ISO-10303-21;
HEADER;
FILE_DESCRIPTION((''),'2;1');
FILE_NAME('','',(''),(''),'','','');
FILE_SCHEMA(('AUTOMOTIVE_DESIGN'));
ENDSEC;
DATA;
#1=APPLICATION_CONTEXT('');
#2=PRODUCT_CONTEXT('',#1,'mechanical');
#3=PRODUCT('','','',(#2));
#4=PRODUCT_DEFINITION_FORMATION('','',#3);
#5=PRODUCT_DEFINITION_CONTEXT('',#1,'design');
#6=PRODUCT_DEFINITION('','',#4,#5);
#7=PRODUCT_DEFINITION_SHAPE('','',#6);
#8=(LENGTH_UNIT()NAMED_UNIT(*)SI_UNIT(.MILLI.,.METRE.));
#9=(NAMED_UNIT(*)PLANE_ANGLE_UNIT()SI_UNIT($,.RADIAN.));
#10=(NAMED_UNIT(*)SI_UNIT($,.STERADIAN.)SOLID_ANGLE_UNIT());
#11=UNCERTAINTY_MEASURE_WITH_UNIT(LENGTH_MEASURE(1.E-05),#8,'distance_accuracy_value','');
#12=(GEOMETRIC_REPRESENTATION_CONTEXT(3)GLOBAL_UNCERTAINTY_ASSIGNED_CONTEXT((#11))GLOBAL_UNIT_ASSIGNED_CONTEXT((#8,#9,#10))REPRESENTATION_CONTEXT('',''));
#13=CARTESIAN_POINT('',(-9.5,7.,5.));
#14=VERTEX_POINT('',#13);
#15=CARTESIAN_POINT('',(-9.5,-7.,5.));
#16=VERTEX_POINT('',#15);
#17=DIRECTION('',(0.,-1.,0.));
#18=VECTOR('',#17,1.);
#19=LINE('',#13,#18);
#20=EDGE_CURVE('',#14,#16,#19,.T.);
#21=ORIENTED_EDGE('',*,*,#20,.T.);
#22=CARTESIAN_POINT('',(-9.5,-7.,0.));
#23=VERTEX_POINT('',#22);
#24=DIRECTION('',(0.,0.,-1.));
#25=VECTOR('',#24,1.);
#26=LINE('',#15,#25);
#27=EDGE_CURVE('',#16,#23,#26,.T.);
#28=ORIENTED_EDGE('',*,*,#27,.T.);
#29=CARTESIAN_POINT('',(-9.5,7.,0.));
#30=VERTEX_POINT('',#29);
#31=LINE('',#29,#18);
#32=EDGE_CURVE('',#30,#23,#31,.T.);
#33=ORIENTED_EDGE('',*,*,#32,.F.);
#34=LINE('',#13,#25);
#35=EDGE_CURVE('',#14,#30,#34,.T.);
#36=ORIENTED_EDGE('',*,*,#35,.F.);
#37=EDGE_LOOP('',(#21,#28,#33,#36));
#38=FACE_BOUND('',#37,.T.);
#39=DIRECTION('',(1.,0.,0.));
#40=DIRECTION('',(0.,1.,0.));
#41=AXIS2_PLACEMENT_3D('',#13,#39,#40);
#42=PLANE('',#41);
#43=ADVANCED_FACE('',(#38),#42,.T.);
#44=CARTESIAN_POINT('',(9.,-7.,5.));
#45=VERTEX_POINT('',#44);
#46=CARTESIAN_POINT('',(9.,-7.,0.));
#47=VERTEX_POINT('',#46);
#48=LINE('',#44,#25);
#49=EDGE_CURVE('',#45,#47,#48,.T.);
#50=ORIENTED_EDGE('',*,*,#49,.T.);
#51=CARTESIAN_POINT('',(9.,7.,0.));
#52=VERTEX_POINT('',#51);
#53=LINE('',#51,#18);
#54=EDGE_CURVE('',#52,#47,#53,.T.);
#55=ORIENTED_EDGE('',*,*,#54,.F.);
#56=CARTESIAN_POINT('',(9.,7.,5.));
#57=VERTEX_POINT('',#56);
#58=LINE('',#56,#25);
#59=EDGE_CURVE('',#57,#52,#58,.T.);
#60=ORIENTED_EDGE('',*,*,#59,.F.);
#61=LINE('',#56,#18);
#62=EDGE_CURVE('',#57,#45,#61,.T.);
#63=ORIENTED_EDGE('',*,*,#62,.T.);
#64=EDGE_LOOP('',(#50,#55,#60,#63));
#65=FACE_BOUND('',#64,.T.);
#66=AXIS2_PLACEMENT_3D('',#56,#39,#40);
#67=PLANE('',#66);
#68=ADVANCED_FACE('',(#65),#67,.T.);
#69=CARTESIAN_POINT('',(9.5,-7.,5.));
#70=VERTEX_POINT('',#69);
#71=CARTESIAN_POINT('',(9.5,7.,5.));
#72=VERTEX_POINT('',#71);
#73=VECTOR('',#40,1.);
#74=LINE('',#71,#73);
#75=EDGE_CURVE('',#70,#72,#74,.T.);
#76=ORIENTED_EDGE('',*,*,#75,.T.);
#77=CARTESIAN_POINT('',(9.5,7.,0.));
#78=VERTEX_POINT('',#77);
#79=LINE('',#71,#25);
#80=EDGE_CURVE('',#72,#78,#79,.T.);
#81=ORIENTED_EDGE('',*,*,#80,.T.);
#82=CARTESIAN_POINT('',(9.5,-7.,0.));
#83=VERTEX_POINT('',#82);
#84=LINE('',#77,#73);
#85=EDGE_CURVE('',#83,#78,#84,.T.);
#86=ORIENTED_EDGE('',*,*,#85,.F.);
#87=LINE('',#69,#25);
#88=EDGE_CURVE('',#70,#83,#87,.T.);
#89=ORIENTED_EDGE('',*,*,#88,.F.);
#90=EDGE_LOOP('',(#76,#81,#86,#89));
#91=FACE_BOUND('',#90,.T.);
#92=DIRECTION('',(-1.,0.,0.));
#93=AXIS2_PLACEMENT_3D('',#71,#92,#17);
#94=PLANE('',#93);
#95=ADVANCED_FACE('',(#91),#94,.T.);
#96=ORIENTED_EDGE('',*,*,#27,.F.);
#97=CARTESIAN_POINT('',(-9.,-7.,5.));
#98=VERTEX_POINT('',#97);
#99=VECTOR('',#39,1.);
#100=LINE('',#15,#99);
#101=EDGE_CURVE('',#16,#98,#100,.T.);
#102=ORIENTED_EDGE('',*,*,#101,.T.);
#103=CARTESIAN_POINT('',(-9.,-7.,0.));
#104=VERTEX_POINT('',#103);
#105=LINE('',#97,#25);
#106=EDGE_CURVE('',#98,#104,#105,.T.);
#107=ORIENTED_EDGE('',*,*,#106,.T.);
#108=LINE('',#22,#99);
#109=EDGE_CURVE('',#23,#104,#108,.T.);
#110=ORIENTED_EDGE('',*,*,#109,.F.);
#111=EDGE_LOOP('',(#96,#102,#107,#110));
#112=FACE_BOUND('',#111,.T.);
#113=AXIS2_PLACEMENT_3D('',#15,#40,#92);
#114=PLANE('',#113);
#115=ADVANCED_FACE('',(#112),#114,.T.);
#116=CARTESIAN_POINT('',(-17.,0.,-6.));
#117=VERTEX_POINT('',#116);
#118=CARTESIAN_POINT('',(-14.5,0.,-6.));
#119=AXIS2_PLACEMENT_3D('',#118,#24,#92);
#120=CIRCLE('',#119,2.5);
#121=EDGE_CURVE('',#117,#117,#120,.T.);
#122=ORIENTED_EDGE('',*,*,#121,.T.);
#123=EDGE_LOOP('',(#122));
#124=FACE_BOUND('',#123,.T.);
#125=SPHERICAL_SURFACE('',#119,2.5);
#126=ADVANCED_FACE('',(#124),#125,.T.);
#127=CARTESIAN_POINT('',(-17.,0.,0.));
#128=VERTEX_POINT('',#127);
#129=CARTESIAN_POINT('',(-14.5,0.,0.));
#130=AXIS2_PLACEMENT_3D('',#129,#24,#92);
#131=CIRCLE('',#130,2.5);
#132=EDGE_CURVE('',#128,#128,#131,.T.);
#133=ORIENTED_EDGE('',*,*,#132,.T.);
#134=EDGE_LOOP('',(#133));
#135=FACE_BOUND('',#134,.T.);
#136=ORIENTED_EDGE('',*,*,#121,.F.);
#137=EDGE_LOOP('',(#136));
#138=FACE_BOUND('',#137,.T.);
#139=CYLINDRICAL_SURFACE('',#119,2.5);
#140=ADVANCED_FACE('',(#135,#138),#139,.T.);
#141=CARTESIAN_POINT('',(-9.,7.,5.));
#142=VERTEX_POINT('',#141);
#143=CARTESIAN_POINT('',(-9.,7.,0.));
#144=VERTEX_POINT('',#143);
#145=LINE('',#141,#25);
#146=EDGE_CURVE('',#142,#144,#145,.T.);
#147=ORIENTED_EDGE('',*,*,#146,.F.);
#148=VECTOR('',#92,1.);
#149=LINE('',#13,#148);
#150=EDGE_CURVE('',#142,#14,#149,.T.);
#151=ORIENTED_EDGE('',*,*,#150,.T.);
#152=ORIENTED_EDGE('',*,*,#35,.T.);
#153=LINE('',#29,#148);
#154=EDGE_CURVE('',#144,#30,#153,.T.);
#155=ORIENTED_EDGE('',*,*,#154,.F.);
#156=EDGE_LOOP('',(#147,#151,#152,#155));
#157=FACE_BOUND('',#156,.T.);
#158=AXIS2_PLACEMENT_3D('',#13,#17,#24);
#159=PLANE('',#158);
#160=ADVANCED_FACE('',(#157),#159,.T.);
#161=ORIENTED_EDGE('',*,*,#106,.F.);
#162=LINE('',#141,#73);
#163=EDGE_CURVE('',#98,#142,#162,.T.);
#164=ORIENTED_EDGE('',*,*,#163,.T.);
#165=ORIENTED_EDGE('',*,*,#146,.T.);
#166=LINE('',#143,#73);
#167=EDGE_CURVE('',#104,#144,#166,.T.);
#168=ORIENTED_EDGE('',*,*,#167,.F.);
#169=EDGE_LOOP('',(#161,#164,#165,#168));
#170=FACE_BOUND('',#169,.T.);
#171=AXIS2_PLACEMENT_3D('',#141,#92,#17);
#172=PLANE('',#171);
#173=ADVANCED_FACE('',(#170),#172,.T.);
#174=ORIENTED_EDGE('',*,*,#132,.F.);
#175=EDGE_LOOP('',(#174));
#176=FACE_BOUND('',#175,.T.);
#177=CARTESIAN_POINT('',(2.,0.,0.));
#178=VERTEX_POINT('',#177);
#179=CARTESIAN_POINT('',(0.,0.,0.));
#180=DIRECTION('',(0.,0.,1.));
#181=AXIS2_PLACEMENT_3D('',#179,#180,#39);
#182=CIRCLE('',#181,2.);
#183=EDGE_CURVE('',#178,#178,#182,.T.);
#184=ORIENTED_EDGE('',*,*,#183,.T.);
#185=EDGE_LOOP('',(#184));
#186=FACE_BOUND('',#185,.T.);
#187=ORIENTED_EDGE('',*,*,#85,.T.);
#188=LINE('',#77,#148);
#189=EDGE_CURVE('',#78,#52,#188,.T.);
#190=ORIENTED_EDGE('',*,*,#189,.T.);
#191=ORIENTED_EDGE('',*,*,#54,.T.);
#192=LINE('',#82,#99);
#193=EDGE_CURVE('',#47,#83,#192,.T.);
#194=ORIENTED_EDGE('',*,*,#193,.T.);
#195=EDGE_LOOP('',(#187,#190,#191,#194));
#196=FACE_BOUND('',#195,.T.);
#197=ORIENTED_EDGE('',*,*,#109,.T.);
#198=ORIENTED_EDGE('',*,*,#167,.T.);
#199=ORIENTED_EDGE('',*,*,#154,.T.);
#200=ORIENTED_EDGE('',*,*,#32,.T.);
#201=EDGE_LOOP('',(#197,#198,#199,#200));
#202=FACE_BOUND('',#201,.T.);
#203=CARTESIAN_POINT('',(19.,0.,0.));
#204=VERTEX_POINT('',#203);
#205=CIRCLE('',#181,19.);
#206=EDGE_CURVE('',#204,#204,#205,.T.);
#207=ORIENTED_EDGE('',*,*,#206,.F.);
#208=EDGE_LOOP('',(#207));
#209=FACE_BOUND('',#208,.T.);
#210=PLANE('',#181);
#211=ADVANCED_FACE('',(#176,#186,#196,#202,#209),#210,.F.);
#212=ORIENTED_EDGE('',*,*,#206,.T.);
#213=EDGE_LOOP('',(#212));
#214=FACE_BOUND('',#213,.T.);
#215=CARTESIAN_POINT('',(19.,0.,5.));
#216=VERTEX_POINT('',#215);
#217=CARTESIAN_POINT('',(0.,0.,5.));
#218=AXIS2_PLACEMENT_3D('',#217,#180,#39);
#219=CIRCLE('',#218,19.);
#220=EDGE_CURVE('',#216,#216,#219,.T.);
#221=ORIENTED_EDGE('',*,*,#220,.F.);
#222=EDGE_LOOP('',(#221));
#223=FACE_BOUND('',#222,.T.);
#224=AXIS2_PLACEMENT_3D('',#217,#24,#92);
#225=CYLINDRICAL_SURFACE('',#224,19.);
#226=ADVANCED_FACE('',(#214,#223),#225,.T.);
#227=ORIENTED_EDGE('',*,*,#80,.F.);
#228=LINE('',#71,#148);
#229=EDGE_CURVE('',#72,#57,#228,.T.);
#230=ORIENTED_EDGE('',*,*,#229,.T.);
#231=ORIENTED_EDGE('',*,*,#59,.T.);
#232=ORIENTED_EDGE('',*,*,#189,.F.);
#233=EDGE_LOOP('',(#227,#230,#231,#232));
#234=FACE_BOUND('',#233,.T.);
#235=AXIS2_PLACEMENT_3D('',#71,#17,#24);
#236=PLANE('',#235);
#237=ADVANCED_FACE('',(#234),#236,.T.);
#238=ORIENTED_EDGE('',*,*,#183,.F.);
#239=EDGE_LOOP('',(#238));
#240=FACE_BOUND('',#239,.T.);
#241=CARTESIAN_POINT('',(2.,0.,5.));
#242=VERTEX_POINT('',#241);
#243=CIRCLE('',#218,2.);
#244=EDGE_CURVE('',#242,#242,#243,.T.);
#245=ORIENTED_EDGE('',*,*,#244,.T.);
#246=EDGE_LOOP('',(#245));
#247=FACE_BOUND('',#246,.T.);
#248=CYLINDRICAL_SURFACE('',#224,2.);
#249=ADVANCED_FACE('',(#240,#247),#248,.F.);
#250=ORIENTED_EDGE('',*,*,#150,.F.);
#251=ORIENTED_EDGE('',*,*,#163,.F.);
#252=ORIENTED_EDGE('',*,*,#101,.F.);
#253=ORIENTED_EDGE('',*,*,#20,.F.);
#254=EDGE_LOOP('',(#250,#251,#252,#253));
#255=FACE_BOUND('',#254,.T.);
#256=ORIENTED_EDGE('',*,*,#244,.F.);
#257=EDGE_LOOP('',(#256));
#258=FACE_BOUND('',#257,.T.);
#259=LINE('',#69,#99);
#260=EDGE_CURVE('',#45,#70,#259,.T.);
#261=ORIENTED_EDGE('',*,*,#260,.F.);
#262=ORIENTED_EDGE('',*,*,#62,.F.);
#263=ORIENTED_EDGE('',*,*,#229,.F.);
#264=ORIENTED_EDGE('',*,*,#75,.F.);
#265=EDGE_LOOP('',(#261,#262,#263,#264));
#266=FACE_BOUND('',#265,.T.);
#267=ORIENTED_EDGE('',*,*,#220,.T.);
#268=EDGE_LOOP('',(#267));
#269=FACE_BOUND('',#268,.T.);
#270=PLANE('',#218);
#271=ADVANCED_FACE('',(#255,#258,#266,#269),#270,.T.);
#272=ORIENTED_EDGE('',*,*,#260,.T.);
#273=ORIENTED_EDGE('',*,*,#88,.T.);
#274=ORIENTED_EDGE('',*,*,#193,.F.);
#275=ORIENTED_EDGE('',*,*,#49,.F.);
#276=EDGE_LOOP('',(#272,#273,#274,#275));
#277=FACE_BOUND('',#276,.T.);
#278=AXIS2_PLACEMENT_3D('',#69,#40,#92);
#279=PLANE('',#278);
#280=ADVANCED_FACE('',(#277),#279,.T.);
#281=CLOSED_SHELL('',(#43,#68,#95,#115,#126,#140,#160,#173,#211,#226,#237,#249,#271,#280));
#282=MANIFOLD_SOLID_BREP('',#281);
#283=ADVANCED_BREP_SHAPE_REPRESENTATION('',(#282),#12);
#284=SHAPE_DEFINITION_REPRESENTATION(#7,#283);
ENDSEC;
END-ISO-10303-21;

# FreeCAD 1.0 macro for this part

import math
import FreeCAD as App
import Part
import Sketcher
from FreeCAD import Vector

doc = App.newDocument("Part")
body = doc.addObject("PartDesign::Body", "Body")

sketch1 = doc.addObject("Sketcher::SketchObject", "Sketch")
body.addObject(sketch1)
sketch1.AttachmentSupport = (doc.XY_Plane, [""])
sketch1.MapMode = "FlatFace"
sketch1.addGeometry([
    Part.Circle(Vector(0, 0, 0), Vector(0, 0, 1), 19),
    Part.LineSegment(Vector(-9, -7, 0), Vector(-9.5, -7, 0)),
    Part.LineSegment(Vector(-9.5, -7, 0), Vector(-9.5, 7, 0)),
    Part.LineSegment(Vector(-9.5, 7, 0), Vector(-9, 7, 0)),
    Part.LineSegment(Vector(-9, 7, 0), Vector(-9, -7, 0)),
    Part.Circle(Vector(0, 0, 0), Vector(0, 0, 1), 2),
    Part.LineSegment(Vector(9.5, -7, 0), Vector(9, -7, 0)),
    Part.LineSegment(Vector(9, -7, 0), Vector(9, 7, 0)),
    Part.LineSegment(Vector(9, 7, 0), Vector(9.5, 7, 0)),
    Part.LineSegment(Vector(9.5, 7, 0), Vector(9.5, -7, 0)),
], False)
sketch1.addConstraint([
    Sketcher.Constraint("Coincident", 1, 2, 2, 1),
    Sketcher.Constraint("Coincident", 2, 2, 3, 1),
    Sketcher.Constraint("Coincident", 3, 2, 4, 1),
    Sketcher.Constraint("Coincident", 4, 2, 1, 1),
    Sketcher.Constraint("Coincident", 6, 2, 7, 1),
    Sketcher.Constraint("Coincident", 7, 2, 8, 1),
    Sketcher.Constraint("Coincident", 8, 2, 9, 1),
    Sketcher.Constraint("Coincident", 9, 2, 6, 1),
    Sketcher.Constraint("Horizontal", 1),
    Sketcher.Constraint("Vertical", 2),
    Sketcher.Constraint("Horizontal", 3),
    Sketcher.Constraint("Vertical", 4),
    Sketcher.Constraint("Horizontal", 6),
    Sketcher.Constraint("Vertical", 7),
    Sketcher.Constraint("Horizontal", 8),
    Sketcher.Constraint("Vertical", 9),
    Sketcher.Constraint("Coincident", 0, 3, -1, 1),
    Sketcher.Constraint("Coincident", 5, 3, -1, 1),
    Sketcher.Constraint("Symmetric", 3, 2, 6, 2, -1, 1),
    Sketcher.Constraint("Symmetric", 1, 2, 8, 2, -1, 1),
    Sketcher.Constraint("Horizontal", 4, 2, 6, 2),
    Sketcher.Constraint("Diameter", 0, 38.0),
    Sketcher.Constraint("Diameter", 5, 4.0),
    Sketcher.Constraint("DistanceY", 2, 1, 2, 2, 14.0),
    Sketcher.Constraint("DistanceX", 1, 2, 1, 1, 0.5),
    Sketcher.Constraint("DistanceX", 3, 2, -1, 1, 9.0),
])
pad1 = doc.addObject("PartDesign::Pad", "Pad")
body.addObject(pad1)
pad1.Profile = sketch1
pad1.Length = 5

sketch2 = doc.addObject("Sketcher::SketchObject", "Sketch001")
body.addObject(sketch2)
sketch2.AttachmentSupport = (doc.XZ_Plane, [""])
sketch2.MapMode = "FlatFace"
sketch2.addGeometry([
    Part.LineSegment(Vector(-17, -6, 0), Vector(-17, 0, 0)),
    Part.LineSegment(Vector(-17, 0, 0), Vector(-14.5, 0, 0)),
    Part.LineSegment(Vector(-14.5, 0, 0), Vector(-14.5, -8.5, 0)),
    Part.ArcOfCircle(Part.Circle(Vector(-14.5, -6, 0), Vector(0, 0, 1), 2.5), math.radians(180), math.radians(270)),
], False)
sketch2.addGeometry(Part.LineSegment(Vector(-14.5, -8.5, 0), Vector(-14.5, 0, 0)), True)
sketch2.addConstraint([
    Sketcher.Constraint("Coincident", 0, 2, 1, 1),
    Sketcher.Constraint("Coincident", 1, 2, 2, 1),
    Sketcher.Constraint("Coincident", 2, 2, 3, 2),
    Sketcher.Constraint("Tangent", 3, 1, 0, 1),
    Sketcher.Constraint("Vertical", 0),
    Sketcher.Constraint("Horizontal", 1),
    Sketcher.Constraint("Vertical", 2),
    Sketcher.Constraint("Vertical", 4),
    Sketcher.Constraint("Coincident", 4, 1, 2, 2),
    Sketcher.Constraint("PointOnObject", 0, 2, -1),
    Sketcher.Constraint("PointOnObject", 4, 2, -1),
    Sketcher.Constraint("Vertical", 3, 3, 1, 2),
    Sketcher.Constraint("Radius", 3, 2.5),
    Sketcher.Constraint("DistanceY", 0, 1, 0, 2, 6.0),
    Sketcher.Constraint("DistanceX", 0, 2, -1, 1, 17.0),
])
revolution = doc.addObject("PartDesign::Revolution", "Revolution")
body.addObject(revolution)
revolution.Profile = sketch2
revolution.ReferenceAxis = (sketch2, ["Axis0"])
revolution.Angle = 360

doc.recompute()
